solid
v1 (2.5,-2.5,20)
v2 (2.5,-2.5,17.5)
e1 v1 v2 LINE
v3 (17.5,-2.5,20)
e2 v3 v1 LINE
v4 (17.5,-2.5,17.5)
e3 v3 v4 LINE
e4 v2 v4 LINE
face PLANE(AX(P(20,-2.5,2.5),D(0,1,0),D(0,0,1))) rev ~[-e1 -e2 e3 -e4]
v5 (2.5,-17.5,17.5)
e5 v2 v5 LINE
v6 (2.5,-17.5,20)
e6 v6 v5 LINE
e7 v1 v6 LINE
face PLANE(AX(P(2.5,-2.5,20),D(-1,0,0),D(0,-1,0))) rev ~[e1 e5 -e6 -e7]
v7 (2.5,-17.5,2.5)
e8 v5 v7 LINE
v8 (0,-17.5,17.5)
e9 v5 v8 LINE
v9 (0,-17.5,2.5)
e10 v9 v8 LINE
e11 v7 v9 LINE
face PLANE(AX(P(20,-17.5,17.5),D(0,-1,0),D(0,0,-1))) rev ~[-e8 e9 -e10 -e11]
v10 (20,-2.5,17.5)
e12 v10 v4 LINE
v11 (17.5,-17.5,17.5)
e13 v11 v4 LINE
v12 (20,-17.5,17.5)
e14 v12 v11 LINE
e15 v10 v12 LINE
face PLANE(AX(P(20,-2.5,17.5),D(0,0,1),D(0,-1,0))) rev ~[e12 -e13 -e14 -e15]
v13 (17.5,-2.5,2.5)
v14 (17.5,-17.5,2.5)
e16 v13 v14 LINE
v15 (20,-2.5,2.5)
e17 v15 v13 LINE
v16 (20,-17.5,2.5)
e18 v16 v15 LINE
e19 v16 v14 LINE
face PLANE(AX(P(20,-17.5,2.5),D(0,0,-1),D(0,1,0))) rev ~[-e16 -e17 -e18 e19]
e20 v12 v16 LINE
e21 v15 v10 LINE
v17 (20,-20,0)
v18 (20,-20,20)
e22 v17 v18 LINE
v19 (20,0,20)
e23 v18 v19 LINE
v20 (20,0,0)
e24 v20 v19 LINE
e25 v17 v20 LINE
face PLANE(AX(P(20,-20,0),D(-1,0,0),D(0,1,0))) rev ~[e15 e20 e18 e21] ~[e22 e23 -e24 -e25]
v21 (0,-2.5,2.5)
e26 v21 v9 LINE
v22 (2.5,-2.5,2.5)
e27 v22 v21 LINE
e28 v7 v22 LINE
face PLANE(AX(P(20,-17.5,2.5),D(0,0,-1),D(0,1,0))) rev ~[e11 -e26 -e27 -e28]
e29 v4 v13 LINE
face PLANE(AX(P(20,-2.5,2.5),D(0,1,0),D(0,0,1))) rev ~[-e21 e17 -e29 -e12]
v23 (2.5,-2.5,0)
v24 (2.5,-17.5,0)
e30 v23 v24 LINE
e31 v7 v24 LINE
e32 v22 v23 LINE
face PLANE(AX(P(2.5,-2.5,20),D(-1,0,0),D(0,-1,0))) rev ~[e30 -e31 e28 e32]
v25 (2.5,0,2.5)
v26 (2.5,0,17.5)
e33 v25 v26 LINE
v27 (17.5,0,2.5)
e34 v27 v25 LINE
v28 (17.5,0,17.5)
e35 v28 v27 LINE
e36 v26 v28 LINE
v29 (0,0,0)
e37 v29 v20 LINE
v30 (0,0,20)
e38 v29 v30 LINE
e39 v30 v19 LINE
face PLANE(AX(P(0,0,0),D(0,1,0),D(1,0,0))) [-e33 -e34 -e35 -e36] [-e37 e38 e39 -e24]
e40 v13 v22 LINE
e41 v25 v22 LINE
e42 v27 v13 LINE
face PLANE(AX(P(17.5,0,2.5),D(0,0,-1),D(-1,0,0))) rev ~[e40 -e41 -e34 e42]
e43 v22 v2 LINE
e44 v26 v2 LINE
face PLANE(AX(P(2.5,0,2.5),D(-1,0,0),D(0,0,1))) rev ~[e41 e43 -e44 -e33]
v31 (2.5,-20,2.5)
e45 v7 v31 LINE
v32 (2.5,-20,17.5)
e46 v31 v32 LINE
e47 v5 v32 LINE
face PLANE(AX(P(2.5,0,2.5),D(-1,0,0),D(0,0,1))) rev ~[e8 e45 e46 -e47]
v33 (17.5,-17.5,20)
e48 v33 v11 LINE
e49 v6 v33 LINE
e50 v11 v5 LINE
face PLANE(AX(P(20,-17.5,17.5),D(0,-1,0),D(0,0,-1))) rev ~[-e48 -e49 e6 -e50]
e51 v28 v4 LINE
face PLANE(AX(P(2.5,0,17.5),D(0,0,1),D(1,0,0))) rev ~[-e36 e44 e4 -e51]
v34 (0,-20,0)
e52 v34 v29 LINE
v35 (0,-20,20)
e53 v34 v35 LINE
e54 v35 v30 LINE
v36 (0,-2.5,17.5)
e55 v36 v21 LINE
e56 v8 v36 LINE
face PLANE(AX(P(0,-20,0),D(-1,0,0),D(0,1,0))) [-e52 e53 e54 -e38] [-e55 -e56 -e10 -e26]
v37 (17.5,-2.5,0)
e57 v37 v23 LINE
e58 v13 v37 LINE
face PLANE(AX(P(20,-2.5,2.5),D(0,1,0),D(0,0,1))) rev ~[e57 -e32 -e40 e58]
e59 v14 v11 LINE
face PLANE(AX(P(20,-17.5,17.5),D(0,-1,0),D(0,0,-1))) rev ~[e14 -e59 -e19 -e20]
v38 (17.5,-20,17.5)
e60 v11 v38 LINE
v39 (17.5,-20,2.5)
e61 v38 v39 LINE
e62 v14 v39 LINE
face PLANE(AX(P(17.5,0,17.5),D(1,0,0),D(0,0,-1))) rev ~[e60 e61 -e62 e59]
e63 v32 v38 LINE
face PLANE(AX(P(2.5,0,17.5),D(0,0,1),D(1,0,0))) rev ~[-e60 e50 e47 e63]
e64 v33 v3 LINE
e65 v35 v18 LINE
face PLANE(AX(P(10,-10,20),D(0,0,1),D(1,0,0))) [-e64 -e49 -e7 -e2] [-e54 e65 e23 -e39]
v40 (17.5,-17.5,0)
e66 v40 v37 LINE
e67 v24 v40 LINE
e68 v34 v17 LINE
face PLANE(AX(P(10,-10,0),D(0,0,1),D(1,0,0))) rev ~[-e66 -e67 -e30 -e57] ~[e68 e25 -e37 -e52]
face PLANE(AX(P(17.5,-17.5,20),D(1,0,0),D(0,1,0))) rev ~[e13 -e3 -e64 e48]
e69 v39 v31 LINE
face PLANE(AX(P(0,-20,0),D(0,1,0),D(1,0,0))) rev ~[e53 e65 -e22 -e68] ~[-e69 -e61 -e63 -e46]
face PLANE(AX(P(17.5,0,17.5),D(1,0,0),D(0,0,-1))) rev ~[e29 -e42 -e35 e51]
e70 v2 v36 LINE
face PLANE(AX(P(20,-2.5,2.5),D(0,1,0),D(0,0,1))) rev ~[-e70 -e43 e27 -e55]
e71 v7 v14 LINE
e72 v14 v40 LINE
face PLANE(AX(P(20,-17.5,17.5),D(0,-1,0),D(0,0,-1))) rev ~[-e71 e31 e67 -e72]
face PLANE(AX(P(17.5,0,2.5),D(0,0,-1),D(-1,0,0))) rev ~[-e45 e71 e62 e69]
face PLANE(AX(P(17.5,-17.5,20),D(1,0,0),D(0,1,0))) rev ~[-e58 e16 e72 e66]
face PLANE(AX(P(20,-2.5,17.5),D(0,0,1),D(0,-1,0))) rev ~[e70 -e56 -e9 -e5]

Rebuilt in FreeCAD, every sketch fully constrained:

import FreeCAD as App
import Part
import Sketcher

V = App.Vector


def add_polygon(sketch, points):
    """Adds a closed chain of lines whose ends are joined by coincident constraints."""
    first, n = sketch.GeometryCount, len(points)
    for a, b in zip(points, points[1:] + points[:1]):
        sketch.addGeometry(Part.LineSegment(App.Vector(*a, 0), App.Vector(*b, 0)), False)
    for i in range(n):
        sketch.addConstraint(Sketcher.Constraint("Coincident", first + i, 2, first + (i + 1) % n, 1))

doc = App.newDocument("Part")
params = doc.addObject("Spreadsheet::Sheet", "Params")
for row, (alias, value) in enumerate([
    ("sketch1_width", "20 mm"),
    ("pad1_length", "20 mm"),
    ("sketch2_width", "15 mm"),
    ("pocket1_length", "25 mm"),
    ("sketch3_width", "15 mm"),
    ("pocket2_length", "25 mm"),
    ("sketch4_width", "15 mm"),
    ("pocket3_length", "25 mm"),
], start=1):
    params.set(f"A{row}", alias)
    params.set(f"B{row}", "=" + value)
    params.setAlias(f"B{row}", alias)

body = doc.addObject("PartDesign::Body", "Body")

sketch1 = body.newObject("Sketcher::SketchObject", "Sketch")
sketch1.AttachmentSupport = (doc.getObject("XY_Plane"), [""])
sketch1.MapMode = "FlatFace"
add_polygon(sketch1, [(0, 0), (0, -20), (20, -20), (20, 0)])
sketch1.addConstraint(Sketcher.Constraint("Vertical", 0))
sketch1.addConstraint(Sketcher.Constraint("Horizontal", 1))
sketch1.addConstraint(Sketcher.Constraint("Vertical", 2))
sketch1.addConstraint(Sketcher.Constraint("Horizontal", 3))
sketch1.addConstraint(Sketcher.Constraint("Coincident", 3, 2, -1, 1))
sketch1.addConstraint(Sketcher.Constraint("Equal", 3, 0))
sketch1.addConstraint(Sketcher.Constraint("DistanceX", 1, 1, 1, 2, 20.0))
sketch1.setExpression("Constraints[10]", "Params.sketch1_width")
pad1 = body.newObject("PartDesign::Pad", "Pad")
pad1.Profile = sketch1
pad1.setExpression("Length", "Params.pad1_length")

sketch2 = body.newObject("Sketcher::SketchObject", "Sketch001")
sketch2.AttachmentSupport = (doc.getObject("YZ_Plane"), [""])
sketch2.MapMode = "FlatFace"
sketch2.AttachmentOffset = App.Placement(V(0, 0, 20), App.Rotation())
add_polygon(sketch2, [(-18, 2), (-2, 2), (-2, 18), (-18, 18)])
sketch2.addConstraint(Sketcher.Constraint("Horizontal", 0))
sketch2.addConstraint(Sketcher.Constraint("Vertical", 1))
sketch2.addConstraint(Sketcher.Constraint("Horizontal", 2))
sketch2.addConstraint(Sketcher.Constraint("Vertical", 3))
sketch2.addConstraint(Sketcher.Constraint("Equal", 2, 1))
sketch2.addConstraint(Sketcher.Constraint("DistanceX", 0, 1, 0, 2, 15.0))
sketch2.addConstraint(Sketcher.Constraint("DistanceX", 0, 2, -1, 1, 2.5))
sketch2.addConstraint(Sketcher.Constraint("DistanceY", -1, 1, 0, 2, 2.5))
sketch2.setExpression("Constraints[9]", "Params.sketch2_width")
pocket1 = body.newObject("PartDesign::Pocket", "Pocket")
pocket1.Profile = sketch2
pocket1.setExpression("Length", "Params.pocket1_length")

sketch3 = body.newObject("Sketcher::SketchObject", "Sketch002")
sketch3.AttachmentSupport = (doc.getObject("XY_Plane"), [""])
sketch3.MapMode = "FlatFace"
sketch3.AttachmentOffset = App.Placement(V(0, 0, 20), App.Rotation())
add_polygon(sketch3, [(2, -18), (18, -18), (18, -2), (2, -2)])
sketch3.addConstraint(Sketcher.Constraint("Horizontal", 0))
sketch3.addConstraint(Sketcher.Constraint("Vertical", 1))
sketch3.addConstraint(Sketcher.Constraint("Horizontal", 2))
sketch3.addConstraint(Sketcher.Constraint("Vertical", 3))
sketch3.addConstraint(Sketcher.Constraint("Equal", 2, 1))
sketch3.addConstraint(Sketcher.Constraint("DistanceX", 0, 1, 0, 2, 15.0))
sketch3.addConstraint(Sketcher.Constraint("DistanceX", -1, 1, 0, 2, 17.5))
sketch3.addConstraint(Sketcher.Constraint("DistanceY", 0, 2, -1, 1, 17.5))
sketch3.setExpression("Constraints[9]", "Params.sketch3_width")
pocket2 = body.newObject("PartDesign::Pocket", "Pocket001")
pocket2.Profile = sketch3
pocket2.setExpression("Length", "Params.pocket2_length")

sketch4 = body.newObject("Sketcher::SketchObject", "Sketch003")
sketch4.AttachmentSupport = (doc.getObject("XZ_Plane"), [""])
sketch4.MapMode = "FlatFace"
add_polygon(sketch4, [(18, 2), (2, 2), (2, 18), (18, 18)])
sketch4.addConstraint(Sketcher.Constraint("Horizontal", 0))
sketch4.addConstraint(Sketcher.Constraint("Vertical", 1))
sketch4.addConstraint(Sketcher.Constraint("Horizontal", 2))
sketch4.addConstraint(Sketcher.Constraint("Vertical", 3))
sketch4.addConstraint(Sketcher.Constraint("Equal", 2, 1))
sketch4.addConstraint(Sketcher.Constraint("DistanceX", 0, 2, 0, 1, 15.0))
sketch4.addConstraint(Sketcher.Constraint("DistanceX", -1, 1, 0, 2, 2.5))
sketch4.addConstraint(Sketcher.Constraint("DistanceY", -1, 1, 0, 2, 2.5))
sketch4.setExpression("Constraints[9]", "Params.sketch4_width")
pocket3 = body.newObject("PartDesign::Pocket", "Pocket002")
pocket3.Profile = sketch4
pocket3.setExpression("Length", "Params.pocket3_length")
pocket3.Reversed = True

doc.recompute()
